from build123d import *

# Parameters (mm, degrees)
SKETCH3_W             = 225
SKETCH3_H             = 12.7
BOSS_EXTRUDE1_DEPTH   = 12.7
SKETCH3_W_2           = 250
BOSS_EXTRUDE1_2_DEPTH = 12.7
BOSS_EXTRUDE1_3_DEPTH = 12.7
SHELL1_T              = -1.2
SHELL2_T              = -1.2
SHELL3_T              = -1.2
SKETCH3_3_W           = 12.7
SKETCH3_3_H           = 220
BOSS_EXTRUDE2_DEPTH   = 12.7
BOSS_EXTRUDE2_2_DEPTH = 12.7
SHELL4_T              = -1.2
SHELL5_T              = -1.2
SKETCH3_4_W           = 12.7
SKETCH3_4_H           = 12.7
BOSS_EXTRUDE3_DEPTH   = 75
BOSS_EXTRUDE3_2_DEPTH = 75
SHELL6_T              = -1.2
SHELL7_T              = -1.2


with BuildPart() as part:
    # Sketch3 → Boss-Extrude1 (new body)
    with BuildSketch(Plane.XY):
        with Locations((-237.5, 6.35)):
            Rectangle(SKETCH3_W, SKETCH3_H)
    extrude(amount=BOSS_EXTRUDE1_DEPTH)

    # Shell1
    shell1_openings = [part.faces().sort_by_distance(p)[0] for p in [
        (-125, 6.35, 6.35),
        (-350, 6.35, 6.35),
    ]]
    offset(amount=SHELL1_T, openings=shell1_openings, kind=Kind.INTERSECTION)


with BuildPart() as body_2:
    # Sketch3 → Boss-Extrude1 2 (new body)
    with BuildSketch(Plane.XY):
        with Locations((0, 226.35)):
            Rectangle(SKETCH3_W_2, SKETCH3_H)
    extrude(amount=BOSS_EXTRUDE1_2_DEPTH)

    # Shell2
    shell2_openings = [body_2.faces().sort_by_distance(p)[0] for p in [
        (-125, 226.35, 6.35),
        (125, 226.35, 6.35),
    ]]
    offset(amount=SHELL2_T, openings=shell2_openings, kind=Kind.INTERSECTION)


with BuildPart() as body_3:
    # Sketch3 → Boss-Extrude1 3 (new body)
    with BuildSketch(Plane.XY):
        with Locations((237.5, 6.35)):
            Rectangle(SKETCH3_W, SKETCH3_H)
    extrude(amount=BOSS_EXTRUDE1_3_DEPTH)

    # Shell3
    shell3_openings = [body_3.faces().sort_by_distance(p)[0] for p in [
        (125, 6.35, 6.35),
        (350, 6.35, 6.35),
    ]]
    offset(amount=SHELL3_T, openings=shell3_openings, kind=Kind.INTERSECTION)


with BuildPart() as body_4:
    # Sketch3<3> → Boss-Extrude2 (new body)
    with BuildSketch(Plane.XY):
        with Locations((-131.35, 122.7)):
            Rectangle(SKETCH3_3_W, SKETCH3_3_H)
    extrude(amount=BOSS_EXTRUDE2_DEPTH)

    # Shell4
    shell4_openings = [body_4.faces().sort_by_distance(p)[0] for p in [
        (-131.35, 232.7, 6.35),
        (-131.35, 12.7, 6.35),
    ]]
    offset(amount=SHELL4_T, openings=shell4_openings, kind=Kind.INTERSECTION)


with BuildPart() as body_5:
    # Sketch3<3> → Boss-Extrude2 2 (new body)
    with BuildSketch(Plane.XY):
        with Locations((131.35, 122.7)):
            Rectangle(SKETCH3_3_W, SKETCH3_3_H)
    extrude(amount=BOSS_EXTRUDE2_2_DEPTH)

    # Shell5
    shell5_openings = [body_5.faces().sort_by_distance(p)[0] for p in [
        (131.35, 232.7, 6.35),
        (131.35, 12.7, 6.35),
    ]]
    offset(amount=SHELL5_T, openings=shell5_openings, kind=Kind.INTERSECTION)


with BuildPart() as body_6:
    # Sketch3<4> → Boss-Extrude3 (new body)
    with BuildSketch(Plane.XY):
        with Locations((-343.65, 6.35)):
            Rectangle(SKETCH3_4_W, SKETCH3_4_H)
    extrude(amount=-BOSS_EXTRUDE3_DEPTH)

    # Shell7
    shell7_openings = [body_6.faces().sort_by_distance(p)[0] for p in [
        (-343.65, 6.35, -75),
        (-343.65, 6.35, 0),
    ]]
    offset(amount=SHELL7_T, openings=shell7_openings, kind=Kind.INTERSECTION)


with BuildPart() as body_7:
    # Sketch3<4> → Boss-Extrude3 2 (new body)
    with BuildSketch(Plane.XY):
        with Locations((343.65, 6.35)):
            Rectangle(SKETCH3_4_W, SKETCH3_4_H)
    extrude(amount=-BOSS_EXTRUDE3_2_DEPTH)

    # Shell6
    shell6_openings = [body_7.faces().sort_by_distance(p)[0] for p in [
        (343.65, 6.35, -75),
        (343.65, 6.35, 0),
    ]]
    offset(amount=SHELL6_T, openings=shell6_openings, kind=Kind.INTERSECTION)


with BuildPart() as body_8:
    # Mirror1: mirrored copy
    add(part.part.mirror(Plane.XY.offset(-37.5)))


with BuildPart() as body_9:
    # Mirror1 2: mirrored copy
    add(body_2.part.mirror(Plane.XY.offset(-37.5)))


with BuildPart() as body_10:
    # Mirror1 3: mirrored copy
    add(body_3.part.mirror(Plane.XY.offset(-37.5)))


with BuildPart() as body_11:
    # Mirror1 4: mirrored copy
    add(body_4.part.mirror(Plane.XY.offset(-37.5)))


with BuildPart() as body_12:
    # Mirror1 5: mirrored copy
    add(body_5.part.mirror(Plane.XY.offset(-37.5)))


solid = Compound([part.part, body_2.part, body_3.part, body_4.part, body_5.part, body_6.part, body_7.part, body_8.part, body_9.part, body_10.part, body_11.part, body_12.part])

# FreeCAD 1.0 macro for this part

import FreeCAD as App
import Part
import Sketcher


def faces_at(feature, points):
    """Names of the faces that lie closest to the given points."""
    faces = feature.Shape.Faces
    near = lambda p: min(range(len(faces)), key=lambda i: faces[i].distToShape(Part.Vertex(*p))[0])
    return sorted({f"Face{near(p) + 1}" for p in points})


def add_polygon(sketch, points):
    """Adds a closed chain of lines whose ends are joined by coincident constraints."""
    first, n = sketch.GeometryCount, len(points)
    for a, b in zip(points, points[1:] + points[:1]):
        sketch.addGeometry(Part.LineSegment(App.Vector(*a, 0), App.Vector(*b, 0)), False)
    for i in range(n):
        sketch.addConstraint(Sketcher.Constraint("Coincident", first + i, 2, first + (i + 1) % n, 1))

doc = App.newDocument("Part")
params = doc.addObject("Spreadsheet::Sheet", "Params")
for row, (alias, value) in enumerate([
    ("sketch1_width", "225 mm"),
    ("sketch1_height", "12.7 mm"),
    ("pad1_length", "12.7 mm"),
    ("thickness_wall", "1.2 mm"),
    ("sketch2_width", "250 mm"),
    ("sketch2_height", "12.7 mm"),
    ("pad2_length", "12.7 mm"),
    ("thickness2_wall", "1.2 mm"),
    ("sketch3_width", "225 mm"),
    ("sketch3_height", "12.7 mm"),
    ("pad3_length", "12.7 mm"),
    ("thickness3_wall", "1.2 mm"),
    ("sketch4_height", "220 mm"),
    ("sketch4_width", "12.7 mm"),
    ("pad4_length", "12.7 mm"),
    ("thickness4_wall", "1.2 mm"),
    ("sketch5_height", "220 mm"),
    ("sketch5_width", "12.7 mm"),
    ("pad5_length", "12.7 mm"),
    ("thickness5_wall", "1.2 mm"),
    ("sketch6_width", "12.7 mm"),
    ("pad6_length", "75 mm"),
    ("thickness6_wall", "1.2 mm"),
    ("sketch7_width", "12.7 mm"),
    ("pad7_length", "75 mm"),
    ("thickness7_wall", "1.2 mm"),
], start=1):
    params.set(f"A{row}", alias)
    params.set(f"B{row}", "=" + value)
    params.setAlias(f"B{row}", alias)

body = doc.addObject("PartDesign::Body", "Body")

sketch1 = body.newObject("Sketcher::SketchObject", "Sketch")
sketch1.AttachmentSupport = (doc.getObject("XY_Plane"), [""])
sketch1.MapMode = "FlatFace"
add_polygon(sketch1, [(-350, 13), (-350, 0), (-125, 0), (-125, 13)])
sketch1.addConstraint([
    Sketcher.Constraint("Vertical", 0),
    Sketcher.Constraint("Horizontal", 1),
    Sketcher.Constraint("Vertical", 2),
    Sketcher.Constraint("Horizontal", 3),
    Sketcher.Constraint("PointOnObject", 0, 2, -1),
    Sketcher.Constraint("DistanceX", 1, 1, 1, 2, 225.0),
    Sketcher.Constraint("DistanceY", 0, 2, 0, 1, 12.7),
    Sketcher.Constraint("DistanceX", 0, 2, -1, 1, 350.0),
])
sketch1.setExpression("Constraints[9]", "Params.sketch1_width")
sketch1.setExpression("Constraints[10]", "Params.sketch1_height")
pad1 = body.newObject("PartDesign::Pad", "Pad")
pad1.Profile = sketch1
pad1.setExpression("Length", "Params.pad1_length")
doc.recompute()

thickness = body.newObject("PartDesign::Thickness", "Thickness")
thickness.Base = (pad1, faces_at(pad1, [(-125, 6.35, 6.35), (-350, 6.35, 6.35)]))
thickness.setExpression("Value", "Params.thickness_wall")
thickness.Reversed = True
thickness.Join = "Intersection"
body2 = doc.addObject("PartDesign::Body", "Body001")

sketch2 = body2.newObject("Sketcher::SketchObject", "Sketch001")
sketch2.AttachmentSupport = (doc.getObject("XY_Plane001"), [""])
sketch2.MapMode = "FlatFace"
add_polygon(sketch2, [(-125, 233), (-125, 220), (125, 220), (125, 233)])
sketch2.addConstraint([
    Sketcher.Constraint("Vertical", 0),
    Sketcher.Constraint("Horizontal", 1),
    Sketcher.Constraint("Vertical", 2),
    Sketcher.Constraint("Horizontal", 3),
    Sketcher.Constraint("DistanceX", 1, 1, 1, 2, 250.0),
    Sketcher.Constraint("DistanceY", 0, 2, 0, 1, 12.7),
    Sketcher.Constraint("DistanceX", 0, 2, -1, 1, 125.0),
    Sketcher.Constraint("DistanceY", -1, 1, 0, 2, 220.0),
])
sketch2.setExpression("Constraints[8]", "Params.sketch2_width")
sketch2.setExpression("Constraints[9]", "Params.sketch2_height")
pad2 = body2.newObject("PartDesign::Pad", "Pad001")
pad2.Profile = sketch2
pad2.setExpression("Length", "Params.pad2_length")
doc.recompute()

thickness2 = body2.newObject("PartDesign::Thickness", "Thickness001")
thickness2.Base = (pad2, faces_at(pad2, [(-125, 226.35, 6.35), (125, 226.35, 6.35)]))
thickness2.setExpression("Value", "Params.thickness2_wall")
thickness2.Reversed = True
thickness2.Join = "Intersection"
body3 = doc.addObject("PartDesign::Body", "Body002")

sketch3 = body3.newObject("Sketcher::SketchObject", "Sketch002")
sketch3.AttachmentSupport = (doc.getObject("XY_Plane002"), [""])
sketch3.MapMode = "FlatFace"
add_polygon(sketch3, [(125, 13), (125, 0), (350, 0), (350, 13)])
sketch3.addConstraint([
    Sketcher.Constraint("Vertical", 0),
    Sketcher.Constraint("Horizontal", 1),
    Sketcher.Constraint("Vertical", 2),
    Sketcher.Constraint("Horizontal", 3),
    Sketcher.Constraint("PointOnObject", 0, 2, -1),
    Sketcher.Constraint("DistanceX", 1, 1, 1, 2, 225.0),
    Sketcher.Constraint("DistanceY", 0, 2, 0, 1, 12.7),
    Sketcher.Constraint("DistanceX", -1, 1, 0, 2, 125.0),
])
sketch3.setExpression("Constraints[9]", "Params.sketch3_width")
sketch3.setExpression("Constraints[10]", "Params.sketch3_height")
pad3 = body3.newObject("PartDesign::Pad", "Pad002")
pad3.Profile = sketch3
pad3.setExpression("Length", "Params.pad3_length")
doc.recompute()

thickness3 = body3.newObject("PartDesign::Thickness", "Thickness002")
thickness3.Base = (pad3, faces_at(pad3, [(125, 6.35, 6.35), (350, 6.35, 6.35)]))
thickness3.setExpression("Value", "Params.thickness3_wall")
thickness3.Reversed = True
thickness3.Join = "Intersection"
body4 = doc.addObject("PartDesign::Body", "Body003")

sketch4 = body4.newObject("Sketcher::SketchObject", "Sketch003")
sketch4.AttachmentSupport = (doc.getObject("XY_Plane003"), [""])
sketch4.MapMode = "FlatFace"
add_polygon(sketch4, [(-138, 233), (-138, 13), (-125, 13), (-125, 233)])
sketch4.addConstraint([
    Sketcher.Constraint("Vertical", 0),
    Sketcher.Constraint("Horizontal", 1),
    Sketcher.Constraint("Vertical", 2),
    Sketcher.Constraint("Horizontal", 3),
    Sketcher.Constraint("DistanceY", 0, 2, 0, 1, 220.0),
    Sketcher.Constraint("DistanceX", 1, 1, 1, 2, 12.7),
    Sketcher.Constraint("DistanceX", 1, 2, -1, 1, 125.0),
    Sketcher.Constraint("DistanceY", -1, 1, 0, 2, 12.7),
])
sketch4.setExpression("Constraints[8]", "Params.sketch4_height")
sketch4.setExpression("Constraints[9]", "Params.sketch4_width")
pad4 = body4.newObject("PartDesign::Pad", "Pad003")
pad4.Profile = sketch4
pad4.setExpression("Length", "Params.pad4_length")
doc.recompute()

thickness4 = body4.newObject("PartDesign::Thickness", "Thickness003")
thickness4.Base = (pad4, faces_at(pad4, [(-131.35, 232.7, 6.35), (-131.35, 12.7, 6.35)]))
thickness4.setExpression("Value", "Params.thickness4_wall")
thickness4.Reversed = True
thickness4.Join = "Intersection"
body5 = doc.addObject("PartDesign::Body", "Body004")

sketch5 = body5.newObject("Sketcher::SketchObject", "Sketch004")
sketch5.AttachmentSupport = (doc.getObject("XY_Plane004"), [""])
sketch5.MapMode = "FlatFace"
add_polygon(sketch5, [(125, 233), (125, 13), (138, 13), (138, 233)])
sketch5.addConstraint([
    Sketcher.Constraint("Vertical", 0),
    Sketcher.Constraint("Horizontal", 1),
    Sketcher.Constraint("Vertical", 2),
    Sketcher.Constraint("Horizontal", 3),
    Sketcher.Constraint("DistanceY", 0, 2, 0, 1, 220.0),
    Sketcher.Constraint("DistanceX", 1, 1, 1, 2, 12.7),
    Sketcher.Constraint("DistanceX", -1, 1, 0, 2, 125.0),
    Sketcher.Constraint("DistanceY", -1, 1, 0, 2, 12.7),
])
sketch5.setExpression("Constraints[8]", "Params.sketch5_height")
sketch5.setExpression("Constraints[9]", "Params.sketch5_width")
pad5 = body5.newObject("PartDesign::Pad", "Pad004")
pad5.Profile = sketch5
pad5.setExpression("Length", "Params.pad5_length")
doc.recompute()

thickness5 = body5.newObject("PartDesign::Thickness", "Thickness004")
thickness5.Base = (pad5, faces_at(pad5, [(131.35, 232.7, 6.35), (131.35, 12.7, 6.35)]))
thickness5.setExpression("Value", "Params.thickness5_wall")
thickness5.Reversed = True
thickness5.Join = "Intersection"
body6 = doc.addObject("PartDesign::Body", "Body005")

sketch6 = body6.newObject("Sketcher::SketchObject", "Sketch005")
sketch6.AttachmentSupport = (doc.getObject("XY_Plane005"), [""])
sketch6.MapMode = "FlatFace"
add_polygon(sketch6, [(-350, 13), (-350, 0), (-337, 0), (-337, 13)])
sketch6.addConstraint([
    Sketcher.Constraint("Vertical", 0),
    Sketcher.Constraint("Horizontal", 1),
    Sketcher.Constraint("Vertical", 2),
    Sketcher.Constraint("Horizontal", 3),
    Sketcher.Constraint("PointOnObject", 0, 2, -1),
    Sketcher.Constraint("Equal", 3, 0),
    Sketcher.Constraint("DistanceX", 1, 1, 1, 2, 12.7),
    Sketcher.Constraint("DistanceX", 0, 2, -1, 1, 350.0),
])
sketch6.setExpression("Constraints[10]", "Params.sketch6_width")
pad6 = body6.newObject("PartDesign::Pad", "Pad005")
pad6.Profile = sketch6
pad6.setExpression("Length", "Params.pad6_length")
pad6.Reversed = True
doc.recompute()

thickness6 = body6.newObject("PartDesign::Thickness", "Thickness005")
thickness6.Base = (pad6, faces_at(pad6, [(-343.65, 6.35, -75), (-343.65, 6.35, 0)]))
thickness6.setExpression("Value", "Params.thickness6_wall")
thickness6.Reversed = True
thickness6.Join = "Intersection"
body7 = doc.addObject("PartDesign::Body", "Body006")

sketch7 = body7.newObject("Sketcher::SketchObject", "Sketch006")
sketch7.AttachmentSupport = (doc.getObject("XY_Plane006"), [""])
sketch7.MapMode = "FlatFace"
add_polygon(sketch7, [(337, 13), (337, 0), (350, 0), (350, 13)])
sketch7.addConstraint([
    Sketcher.Constraint("Vertical", 0),
    Sketcher.Constraint("Horizontal", 1),
    Sketcher.Constraint("Vertical", 2),
    Sketcher.Constraint("Horizontal", 3),
    Sketcher.Constraint("PointOnObject", 0, 2, -1),
    Sketcher.Constraint("Equal", 3, 0),
    Sketcher.Constraint("DistanceX", 1, 1, 1, 2, 12.7),
    Sketcher.Constraint("DistanceX", -1, 1, 1, 2, 350.0),
])
sketch7.setExpression("Constraints[10]", "Params.sketch7_width")
pad7 = body7.newObject("PartDesign::Pad", "Pad006")
pad7.Profile = sketch7
pad7.setExpression("Length", "Params.pad7_length")
pad7.Reversed = True
doc.recompute()

thickness7 = body7.newObject("PartDesign::Thickness", "Thickness006")
thickness7.Base = (pad7, faces_at(pad7, [(343.65, 6.35, -75), (343.65, 6.35, 0)]))
thickness7.setExpression("Value", "Params.thickness7_wall")
thickness7.Reversed = True
thickness7.Join = "Intersection"
body8 = doc.addObject("PartDesign::Body", "Body007")
doc.recompute()

mirroring = doc.addObject("Part::Mirroring", "Mirroring")
mirroring.Source = body
mirroring.Base = App.Vector(0, 0, -37.5)
mirroring.Normal = App.Vector(0, 0, 1)
body8.BaseFeature = mirroring
doc.recompute()
body9 = doc.addObject("PartDesign::Body", "Body008")
doc.recompute()

mirroring2 = doc.addObject("Part::Mirroring", "Mirroring001")
mirroring2.Source = body2
mirroring2.Base = App.Vector(0, 0, -37.5)
mirroring2.Normal = App.Vector(0, 0, 1)
body9.BaseFeature = mirroring2
doc.recompute()
body10 = doc.addObject("PartDesign::Body", "Body009")
doc.recompute()

mirroring3 = doc.addObject("Part::Mirroring", "Mirroring002")
mirroring3.Source = body3
mirroring3.Base = App.Vector(0, 0, -37.5)
mirroring3.Normal = App.Vector(0, 0, 1)
body10.BaseFeature = mirroring3
doc.recompute()
body11 = doc.addObject("PartDesign::Body", "Body010")
doc.recompute()

mirroring4 = doc.addObject("Part::Mirroring", "Mirroring003")
mirroring4.Source = body4
mirroring4.Base = App.Vector(0, 0, -37.5)
mirroring4.Normal = App.Vector(0, 0, 1)
body11.BaseFeature = mirroring4
doc.recompute()
body12 = doc.addObject("PartDesign::Body", "Body011")
doc.recompute()

mirroring5 = doc.addObject("Part::Mirroring", "Mirroring004")
mirroring5.Source = body5
mirroring5.Base = App.Vector(0, 0, -37.5)
mirroring5.Normal = App.Vector(0, 0, 1)
body12.BaseFeature = mirroring5
doc.recompute()
mirroring.Visibility = False
mirroring2.Visibility = False
mirroring3.Visibility = False
mirroring4.Visibility = False
mirroring5.Visibility = False

doc.recompute()
